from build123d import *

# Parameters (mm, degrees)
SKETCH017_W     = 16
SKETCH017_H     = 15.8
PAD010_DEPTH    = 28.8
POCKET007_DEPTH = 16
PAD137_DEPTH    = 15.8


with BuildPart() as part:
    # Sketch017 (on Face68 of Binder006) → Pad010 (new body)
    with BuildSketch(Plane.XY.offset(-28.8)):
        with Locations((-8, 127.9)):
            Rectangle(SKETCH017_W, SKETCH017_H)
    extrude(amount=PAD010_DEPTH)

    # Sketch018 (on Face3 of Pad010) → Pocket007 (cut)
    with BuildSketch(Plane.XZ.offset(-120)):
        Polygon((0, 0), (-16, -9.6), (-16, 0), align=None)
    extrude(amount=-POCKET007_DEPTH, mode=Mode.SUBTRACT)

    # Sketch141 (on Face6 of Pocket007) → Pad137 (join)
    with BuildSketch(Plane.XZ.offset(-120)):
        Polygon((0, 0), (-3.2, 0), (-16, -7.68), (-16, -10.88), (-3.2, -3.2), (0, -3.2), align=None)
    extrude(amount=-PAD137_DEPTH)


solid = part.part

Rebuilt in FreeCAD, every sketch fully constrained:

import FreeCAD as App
import Part
import Sketcher

V = App.Vector


def add_polygon(sketch, points):
    """Adds a closed chain of lines whose ends are joined by coincident constraints."""
    first, n = sketch.GeometryCount, len(points)
    for a, b in zip(points, points[1:] + points[:1]):
        sketch.addGeometry(Part.LineSegment(App.Vector(*a, 0), App.Vector(*b, 0)), False)
    for i in range(n):
        sketch.addConstraint(Sketcher.Constraint("Coincident", first + i, 2, first + (i + 1) % n, 1))

doc = App.newDocument("Part")
params = doc.addObject("Spreadsheet::Sheet", "Params")
for row, (alias, value) in enumerate([
    ("sketch1_width", "16 mm"),
    ("sketch1_height", "15.8 mm"),
    ("pad1_length", "28.8 mm"),
    ("sketch2_width", "16 mm"),
    ("sketch2_height", "9.6 mm"),
    ("pocket1_length", "16 mm"),
    ("sketch3_width", "3.2 mm"),
    ("pad2_length", "15.8 mm"),
], start=1):
    params.set(f"A{row}", alias)
    params.set(f"B{row}", "=" + value)
    params.setAlias(f"B{row}", alias)

body = doc.addObject("PartDesign::Body", "Body")

# Sketch on XY plane
sketch1 = body.newObject("Sketcher::SketchObject", "Sketch")
sketch1.AttachmentSupport = (doc.getObject("XY_Plane"), [""])
sketch1.MapMode = "FlatFace"
sketch1.AttachmentOffset = App.Placement(V(0, 0, -28.8), App.Rotation())
add_polygon(sketch1, [(-16, 136), (-16, 120), (0, 120), (0, 136)])  # lines 0-3
sketch1.addConstraint(Sketcher.Constraint("Vertical", 0))
sketch1.addConstraint(Sketcher.Constraint("Horizontal", 1))
sketch1.addConstraint(Sketcher.Constraint("Vertical", 2))
sketch1.addConstraint(Sketcher.Constraint("Horizontal", 3))
sketch1.addConstraint(Sketcher.Constraint("PointOnObject", 1, 2, -2))
sketch1.addConstraint(Sketcher.Constraint("DistanceX", 1, 1, 1, 2, 16.0))
sketch1.addConstraint(Sketcher.Constraint("DistanceY", 0, 2, 0, 1, 15.8))
sketch1.addConstraint(Sketcher.Constraint("DistanceY", -1, 1, 0, 2, 120.0))
sketch1.setExpression("Constraints[9]", "Params.sketch1_width")
sketch1.setExpression("Constraints[10]", "Params.sketch1_height")
pad1 = body.newObject("PartDesign::Pad", "Pad")
pad1.Profile = sketch1
pad1.setExpression("Length", "Params.pad1_length")

# Sketch on XZ plane
sketch2 = body.newObject("Sketcher::SketchObject", "Sketch001")
sketch2.AttachmentSupport = (doc.getObject("XZ_Plane"), [""])
sketch2.MapMode = "FlatFace"
sketch2.AttachmentOffset = App.Placement(V(0, 0, -120), App.Rotation())
add_polygon(sketch2, [(-16, -10), (0, 0), (-16, 0)])  # lines 0-2
sketch2.addConstraint(Sketcher.Constraint("Horizontal", 1))
sketch2.addConstraint(Sketcher.Constraint("Vertical", 2))
sketch2.addConstraint(Sketcher.Constraint("Coincident", 0, 2, -1, 1))
sketch2.addConstraint(Sketcher.Constraint("DistanceX", 1, 2, 1, 1, 16.0))
sketch2.addConstraint(Sketcher.Constraint("DistanceY", 2, 2, 2, 1, 9.6))
sketch2.setExpression("Constraints[6]", "Params.sketch2_width")
sketch2.setExpression("Constraints[7]", "Params.sketch2_height")
pocket1 = body.newObject("PartDesign::Pocket", "Pocket")
pocket1.Profile = sketch2
pocket1.setExpression("Length", "Params.pocket1_length")

# Sketch on XZ plane
sketch3 = body.newObject("Sketcher::SketchObject", "Sketch002")
sketch3.AttachmentSupport = (doc.getObject("XZ_Plane"), [""])
sketch3.MapMode = "FlatFace"
sketch3.AttachmentOffset = App.Placement(V(0, 0, -120), App.Rotation())
add_polygon(sketch3, [(0, 0), (-3.2, 0), (-16, -7.7), (-16, -10.9), (-3.2, -3.2), (0, -3.2)])  # lines 0-5
sketch3.addConstraint(Sketcher.Constraint("Horizontal", 0))
sketch3.addConstraint(Sketcher.Constraint("Vertical", 2))
sketch3.addConstraint(Sketcher.Constraint("Horizontal", 4))
sketch3.addConstraint(Sketcher.Constraint("Vertical", 5))
sketch3.addConstraint(Sketcher.Constraint("Coincident", 5, 2, -1, 1))
sketch3.addConstraint(Sketcher.Constraint("Parallel", 1, 3))
sketch3.addConstraint(Sketcher.Constraint("Vertical", 0, 2, 3, 2))
sketch3.addConstraint(Sketcher.Constraint("Equal", 4, 2))
sketch3.addConstraint(Sketcher.Constraint("DistanceX", 0, 2, 0, 1, 3.2))
sketch3.addConstraint(Sketcher.Constraint("DistanceX", 1, 2, -1, 1, 16.0))
sketch3.addConstraint(Sketcher.Constraint("DistanceY", 1, 2, -1, 1, 7.68))
sketch3.setExpression("Constraints[14]", "Params.sketch3_width")
pad2 = body.newObject("PartDesign::Pad", "Pad001")
pad2.Profile = sketch3
pad2.setExpression("Length", "Params.pad2_length")
pad2.Reversed = True

doc.recompute()
